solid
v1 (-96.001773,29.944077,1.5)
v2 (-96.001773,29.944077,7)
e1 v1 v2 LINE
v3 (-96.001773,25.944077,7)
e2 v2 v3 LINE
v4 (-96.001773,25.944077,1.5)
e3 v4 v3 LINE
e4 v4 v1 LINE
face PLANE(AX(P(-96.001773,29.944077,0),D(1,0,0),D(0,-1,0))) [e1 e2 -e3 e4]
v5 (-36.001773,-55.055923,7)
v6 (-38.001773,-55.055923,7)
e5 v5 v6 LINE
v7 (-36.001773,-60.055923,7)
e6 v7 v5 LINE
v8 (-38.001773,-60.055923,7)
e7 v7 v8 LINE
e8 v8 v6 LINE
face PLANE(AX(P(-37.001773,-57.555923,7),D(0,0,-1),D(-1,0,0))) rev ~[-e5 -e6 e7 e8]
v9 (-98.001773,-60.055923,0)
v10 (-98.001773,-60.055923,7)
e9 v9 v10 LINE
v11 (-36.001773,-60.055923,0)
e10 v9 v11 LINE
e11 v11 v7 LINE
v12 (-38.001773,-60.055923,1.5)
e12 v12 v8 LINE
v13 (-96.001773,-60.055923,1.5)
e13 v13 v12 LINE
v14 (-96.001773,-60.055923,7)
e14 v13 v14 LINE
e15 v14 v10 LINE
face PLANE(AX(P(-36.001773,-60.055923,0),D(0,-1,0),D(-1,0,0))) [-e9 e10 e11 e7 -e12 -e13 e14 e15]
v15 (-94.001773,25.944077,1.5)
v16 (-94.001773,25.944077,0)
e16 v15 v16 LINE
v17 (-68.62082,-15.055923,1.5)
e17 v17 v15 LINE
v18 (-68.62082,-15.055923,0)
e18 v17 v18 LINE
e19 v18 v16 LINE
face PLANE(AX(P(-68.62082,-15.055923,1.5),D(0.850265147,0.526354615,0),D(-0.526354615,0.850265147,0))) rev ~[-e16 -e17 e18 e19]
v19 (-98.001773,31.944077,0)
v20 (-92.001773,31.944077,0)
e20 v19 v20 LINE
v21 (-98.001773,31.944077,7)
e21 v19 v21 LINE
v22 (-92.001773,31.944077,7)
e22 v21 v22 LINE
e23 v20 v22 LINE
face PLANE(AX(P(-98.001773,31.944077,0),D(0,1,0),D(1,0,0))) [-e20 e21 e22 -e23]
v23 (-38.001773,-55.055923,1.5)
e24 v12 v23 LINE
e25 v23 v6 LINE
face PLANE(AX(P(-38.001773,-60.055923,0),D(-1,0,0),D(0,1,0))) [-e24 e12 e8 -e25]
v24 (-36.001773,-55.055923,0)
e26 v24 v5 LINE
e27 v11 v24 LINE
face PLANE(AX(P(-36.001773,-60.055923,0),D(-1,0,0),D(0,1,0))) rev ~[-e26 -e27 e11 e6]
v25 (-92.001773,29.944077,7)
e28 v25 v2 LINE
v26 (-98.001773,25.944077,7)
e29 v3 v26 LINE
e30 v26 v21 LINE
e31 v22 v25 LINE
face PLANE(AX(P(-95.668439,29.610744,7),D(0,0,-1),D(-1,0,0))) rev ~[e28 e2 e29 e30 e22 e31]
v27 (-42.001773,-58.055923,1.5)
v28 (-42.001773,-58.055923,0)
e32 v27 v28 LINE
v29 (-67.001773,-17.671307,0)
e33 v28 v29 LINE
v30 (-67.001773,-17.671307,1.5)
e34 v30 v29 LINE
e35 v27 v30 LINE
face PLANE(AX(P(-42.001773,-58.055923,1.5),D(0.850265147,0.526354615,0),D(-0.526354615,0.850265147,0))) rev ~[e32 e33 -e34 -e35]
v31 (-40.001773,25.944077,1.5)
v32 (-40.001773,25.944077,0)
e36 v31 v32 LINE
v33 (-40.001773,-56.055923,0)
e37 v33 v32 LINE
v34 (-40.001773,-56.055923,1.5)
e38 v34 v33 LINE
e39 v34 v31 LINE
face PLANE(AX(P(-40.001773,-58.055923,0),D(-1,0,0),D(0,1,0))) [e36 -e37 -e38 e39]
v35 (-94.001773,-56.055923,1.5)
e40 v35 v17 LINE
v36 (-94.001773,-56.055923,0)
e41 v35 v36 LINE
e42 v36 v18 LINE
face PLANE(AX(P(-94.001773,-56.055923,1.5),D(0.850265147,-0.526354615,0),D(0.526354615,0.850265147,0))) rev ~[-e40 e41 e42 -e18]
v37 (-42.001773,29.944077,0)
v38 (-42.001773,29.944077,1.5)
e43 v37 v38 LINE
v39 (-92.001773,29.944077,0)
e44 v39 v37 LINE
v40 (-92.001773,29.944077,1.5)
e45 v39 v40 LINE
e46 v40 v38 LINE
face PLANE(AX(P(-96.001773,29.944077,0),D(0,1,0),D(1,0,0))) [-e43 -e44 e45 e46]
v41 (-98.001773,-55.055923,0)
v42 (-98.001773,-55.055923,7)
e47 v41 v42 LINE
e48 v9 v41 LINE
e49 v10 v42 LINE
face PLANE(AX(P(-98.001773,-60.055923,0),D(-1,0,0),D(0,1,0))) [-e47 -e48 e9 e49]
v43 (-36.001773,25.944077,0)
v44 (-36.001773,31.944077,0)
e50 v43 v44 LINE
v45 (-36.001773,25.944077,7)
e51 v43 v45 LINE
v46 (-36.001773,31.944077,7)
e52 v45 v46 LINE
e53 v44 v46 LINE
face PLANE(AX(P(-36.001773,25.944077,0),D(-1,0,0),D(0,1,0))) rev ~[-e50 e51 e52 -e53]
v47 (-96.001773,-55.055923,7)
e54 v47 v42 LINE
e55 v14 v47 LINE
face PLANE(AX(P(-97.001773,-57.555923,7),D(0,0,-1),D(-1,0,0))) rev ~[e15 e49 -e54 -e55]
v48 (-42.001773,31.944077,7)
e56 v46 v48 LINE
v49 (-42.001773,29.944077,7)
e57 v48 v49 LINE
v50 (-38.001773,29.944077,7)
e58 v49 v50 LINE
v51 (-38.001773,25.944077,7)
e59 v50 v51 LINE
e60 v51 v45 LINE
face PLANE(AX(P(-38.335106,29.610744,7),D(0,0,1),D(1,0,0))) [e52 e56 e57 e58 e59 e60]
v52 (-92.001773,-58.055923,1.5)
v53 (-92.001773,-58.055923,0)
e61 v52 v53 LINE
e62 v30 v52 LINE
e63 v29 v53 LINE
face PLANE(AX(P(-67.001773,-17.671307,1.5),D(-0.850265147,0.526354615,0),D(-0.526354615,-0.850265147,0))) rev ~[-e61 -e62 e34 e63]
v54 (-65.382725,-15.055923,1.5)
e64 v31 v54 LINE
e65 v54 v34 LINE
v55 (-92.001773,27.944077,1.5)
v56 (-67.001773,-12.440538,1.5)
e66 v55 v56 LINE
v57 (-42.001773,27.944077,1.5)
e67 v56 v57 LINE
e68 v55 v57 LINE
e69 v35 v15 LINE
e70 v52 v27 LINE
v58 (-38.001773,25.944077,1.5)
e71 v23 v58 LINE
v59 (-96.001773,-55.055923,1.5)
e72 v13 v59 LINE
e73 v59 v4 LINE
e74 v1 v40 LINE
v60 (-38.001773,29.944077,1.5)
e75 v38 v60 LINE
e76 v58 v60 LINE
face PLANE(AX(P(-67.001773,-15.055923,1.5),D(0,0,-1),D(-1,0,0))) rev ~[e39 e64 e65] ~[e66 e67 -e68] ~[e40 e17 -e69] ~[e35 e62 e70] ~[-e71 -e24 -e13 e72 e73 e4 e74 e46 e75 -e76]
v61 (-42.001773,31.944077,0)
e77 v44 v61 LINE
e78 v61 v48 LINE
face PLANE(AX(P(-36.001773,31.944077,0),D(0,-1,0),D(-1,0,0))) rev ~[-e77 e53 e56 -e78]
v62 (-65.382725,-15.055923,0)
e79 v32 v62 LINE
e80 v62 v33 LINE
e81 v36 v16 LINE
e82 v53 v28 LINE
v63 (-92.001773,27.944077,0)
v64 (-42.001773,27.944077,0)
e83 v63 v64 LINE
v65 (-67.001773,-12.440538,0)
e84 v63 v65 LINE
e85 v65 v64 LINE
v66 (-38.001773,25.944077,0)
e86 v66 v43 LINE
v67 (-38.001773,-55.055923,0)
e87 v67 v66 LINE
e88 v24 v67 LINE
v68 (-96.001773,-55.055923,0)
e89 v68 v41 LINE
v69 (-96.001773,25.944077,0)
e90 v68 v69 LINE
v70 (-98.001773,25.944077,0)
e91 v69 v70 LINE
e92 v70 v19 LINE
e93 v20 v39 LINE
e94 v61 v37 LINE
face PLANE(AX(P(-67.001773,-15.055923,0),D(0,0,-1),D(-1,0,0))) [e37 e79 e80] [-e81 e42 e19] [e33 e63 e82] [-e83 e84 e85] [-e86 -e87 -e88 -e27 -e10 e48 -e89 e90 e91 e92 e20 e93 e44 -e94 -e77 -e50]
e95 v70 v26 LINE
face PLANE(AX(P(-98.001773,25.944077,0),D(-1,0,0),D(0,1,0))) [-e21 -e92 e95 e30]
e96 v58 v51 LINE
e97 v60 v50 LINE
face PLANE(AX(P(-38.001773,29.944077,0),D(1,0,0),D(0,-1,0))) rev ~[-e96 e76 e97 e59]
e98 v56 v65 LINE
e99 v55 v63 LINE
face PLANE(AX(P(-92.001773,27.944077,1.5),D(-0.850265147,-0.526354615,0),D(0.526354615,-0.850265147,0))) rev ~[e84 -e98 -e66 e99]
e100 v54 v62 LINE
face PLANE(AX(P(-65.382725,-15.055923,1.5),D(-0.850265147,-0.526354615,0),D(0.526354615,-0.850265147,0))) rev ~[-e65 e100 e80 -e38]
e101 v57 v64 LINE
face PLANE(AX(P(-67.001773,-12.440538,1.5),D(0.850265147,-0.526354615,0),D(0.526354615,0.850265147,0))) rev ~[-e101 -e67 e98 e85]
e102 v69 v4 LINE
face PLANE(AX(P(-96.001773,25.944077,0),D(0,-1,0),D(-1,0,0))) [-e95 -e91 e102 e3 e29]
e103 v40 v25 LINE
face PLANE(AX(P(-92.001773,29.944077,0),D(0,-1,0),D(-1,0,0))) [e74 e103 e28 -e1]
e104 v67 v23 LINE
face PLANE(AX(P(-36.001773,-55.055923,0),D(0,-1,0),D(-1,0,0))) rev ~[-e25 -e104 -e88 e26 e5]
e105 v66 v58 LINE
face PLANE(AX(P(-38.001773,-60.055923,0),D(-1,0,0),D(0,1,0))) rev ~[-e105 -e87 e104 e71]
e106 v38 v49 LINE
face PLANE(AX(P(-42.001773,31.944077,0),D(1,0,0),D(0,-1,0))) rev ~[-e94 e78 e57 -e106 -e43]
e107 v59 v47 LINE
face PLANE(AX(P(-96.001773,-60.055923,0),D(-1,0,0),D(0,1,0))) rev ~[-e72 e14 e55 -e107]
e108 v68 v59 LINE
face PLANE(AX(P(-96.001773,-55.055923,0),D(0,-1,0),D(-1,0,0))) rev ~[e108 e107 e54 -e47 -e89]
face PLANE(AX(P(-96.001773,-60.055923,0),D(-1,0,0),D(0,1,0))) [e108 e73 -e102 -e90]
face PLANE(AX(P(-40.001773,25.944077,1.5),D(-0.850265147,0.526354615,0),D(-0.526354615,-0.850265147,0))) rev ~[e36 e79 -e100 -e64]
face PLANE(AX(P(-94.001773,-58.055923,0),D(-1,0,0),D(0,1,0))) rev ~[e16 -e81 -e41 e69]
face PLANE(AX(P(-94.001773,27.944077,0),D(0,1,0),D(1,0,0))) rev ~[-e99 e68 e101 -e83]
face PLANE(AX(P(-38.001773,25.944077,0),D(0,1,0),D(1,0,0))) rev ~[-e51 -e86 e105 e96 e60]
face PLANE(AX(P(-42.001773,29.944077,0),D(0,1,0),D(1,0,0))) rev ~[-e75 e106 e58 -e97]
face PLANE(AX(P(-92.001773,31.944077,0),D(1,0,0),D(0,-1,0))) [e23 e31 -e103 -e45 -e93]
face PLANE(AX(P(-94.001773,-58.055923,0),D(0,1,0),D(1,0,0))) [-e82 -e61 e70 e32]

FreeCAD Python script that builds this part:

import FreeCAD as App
import Part
import Sketcher

V = App.Vector
Q = App.Units.Quantity


def add_polygon(sketch, points):
    """Adds a closed chain of lines whose ends are joined by coincident constraints."""
    first, n = sketch.GeometryCount, len(points)
    for a, b in zip(points, points[1:] + points[:1]):
        sketch.addGeometry(Part.LineSegment(App.Vector(*a, 0), App.Vector(*b, 0)), False)
    for i in range(n):
        sketch.addConstraint(Sketcher.Constraint("Coincident", first + i, 2, first + (i + 1) % n, 1))

doc = App.newDocument("Part")
params = doc.addObject("Spreadsheet::Sheet", "Params")
for row, (alias, value) in enumerate([
    ("sketch1_width", "58 mm"),
    ("sketch1_width2", "54 mm"),
    ("sketch1_height", "90 mm"),
    ("sketch1_height2", "86 mm"),
    ("pad1_length", "1.5 mm"),
    ("sketch2_width", "2 mm"),
    ("sketch2_width2", "4 mm"),
    ("sketch2_height", "5 mm"),
    ("pad2_length", "7 mm"),
    ("sketch3_width", "2 mm"),
    ("pad3_length", "1.5 mm"),
], start=1):
    params.set(f"A{row}", alias)
    params.set(f"B{row}", "=" + value)
    params.setAlias(f"B{row}", alias)

body = doc.addObject("PartDesign::Body", "Body")

sketch1 = doc.addObject("Sketcher::SketchObject", "Sketch")
body.addObject(sketch1)
sketch1.AttachmentSupport = (doc.XY_Plane, [""])
sketch1.MapMode = "FlatFace"
add_polygon(sketch1, [(-96, 30), (-96, -60), (-38, -60), (-38, 30)])
add_polygon(sketch1, [(-40, -58), (-94, -58), (-94, 28), (-40, 28)])
sketch1.addConstraint([
    Sketcher.Constraint("Vertical", 0),
    Sketcher.Constraint("Horizontal", 1),
    Sketcher.Constraint("Vertical", 2),
    Sketcher.Constraint("Horizontal", 3),
    Sketcher.Constraint("Horizontal", 4),
    Sketcher.Constraint("Vertical", 5),
    Sketcher.Constraint("Horizontal", 6),
    Sketcher.Constraint("Vertical", 7),
    Sketcher.Constraint("DistanceX", 1, 1, 1, 2, Q("58 mm")),
    Sketcher.Constraint("DistanceX", 4, 2, 4, 1, Q("54 mm")),
    Sketcher.Constraint("DistanceY", 0, 2, 0, 1, Q("90 mm")),
    Sketcher.Constraint("DistanceY", 5, 1, 5, 2, Q("86 mm")),
    Sketcher.Constraint("DistanceX", 0, 2, 4, 2, Q("2 mm")),
    Sketcher.Constraint("DistanceY", 0, 2, 4, 2, Q("2 mm")),
    Sketcher.Constraint("DistanceX", 0, 2, -1, 1, Q("96.001773 mm")),
    Sketcher.Constraint("DistanceY", 0, 2, -1, 1, Q("60.055923 mm")),
])
sketch1.setExpression("Constraints[16]", "Params.sketch1_width")
sketch1.setExpression("Constraints[17]", "Params.sketch1_width2")
sketch1.setExpression("Constraints[18]", "Params.sketch1_height")
sketch1.setExpression("Constraints[19]", "Params.sketch1_height2")
pad1 = doc.addObject("PartDesign::Pad", "Pad")
body.addObject(pad1)
pad1.Profile = sketch1
pad1.setExpression("Length", "Params.pad1_length")

sketch2 = doc.addObject("Sketcher::SketchObject", "Sketch001")
body.addObject(sketch2)
sketch2.AttachmentSupport = (doc.XY_Plane, [""])
sketch2.MapMode = "FlatFace"
add_polygon(sketch2, [(-36, -55.1), (-36, -60.1), (-38, -60.1), (-38, -55.1)])
add_polygon(sketch2, [(-38, 25.9), (-38, 29.9), (-42, 29.9), (-42, 31.9), (-36, 31.9), (-36, 25.9)])
add_polygon(sketch2, [(-92, 29.9), (-96, 29.9), (-96, 25.9), (-98, 25.9), (-98, 31.9), (-92, 31.9)])
add_polygon(sketch2, [(-96, -55.1), (-96, -60.1), (-98, -60.1), (-98, -55.1)])
sketch2.addConstraint([
    Sketcher.Constraint("Vertical", 0),
    Sketcher.Constraint("Horizontal", 1),
    Sketcher.Constraint("Vertical", 2),
    Sketcher.Constraint("Horizontal", 3),
    Sketcher.Constraint("Vertical", 4),
    Sketcher.Constraint("Horizontal", 5),
    Sketcher.Constraint("Vertical", 6),
    Sketcher.Constraint("Horizontal", 7),
    Sketcher.Constraint("Vertical", 8),
    Sketcher.Constraint("Horizontal", 9),
    Sketcher.Constraint("Horizontal", 10),
    Sketcher.Constraint("Vertical", 11),
    Sketcher.Constraint("Horizontal", 12),
    Sketcher.Constraint("Vertical", 13),
    Sketcher.Constraint("Horizontal", 14),
    Sketcher.Constraint("Vertical", 15),
    Sketcher.Constraint("Vertical", 16),
    Sketcher.Constraint("Horizontal", 17),
    Sketcher.Constraint("Vertical", 18),
    Sketcher.Constraint("Horizontal", 19),
    Sketcher.Constraint("Horizontal", 5, 2, 10, 2),
    Sketcher.Constraint("Horizontal", 9, 2, 11, 2),
    Sketcher.Constraint("Horizontal", 7, 2, 13, 2),
    Sketcher.Constraint("Horizontal", 1, 2, 16, 2),
    Sketcher.Constraint("Horizontal", 3, 2, 18, 2),
    Sketcher.Constraint("Vertical", 2, 2, 4, 2),
    Sketcher.Constraint("Vertical", 3, 2, 7, 2),
    Sketcher.Constraint("Vertical", 11, 2, 16, 2),
    Sketcher.Constraint("Vertical", 13, 2, 17, 2),
    Sketcher.Constraint("Equal", 5, 10),
    Sketcher.Constraint("Equal", 9, 12),
    Sketcher.Constraint("Equal", 10, 4),
    Sketcher.Constraint("Equal", 19, 6),
    Sketcher.Constraint("DistanceX", 1, 2, 1, 1, Q("2 mm")),
    Sketcher.Constraint("DistanceX", 5, 2, 5, 1, Q("4 mm")),
    Sketcher.Constraint("DistanceY", 0, 2, 0, 1, Q("5 mm")),
    Sketcher.Constraint("DistanceY", 2, 2, 4, 2, Q("85 mm")),
    Sketcher.Constraint("DistanceX", 10, 2, 5, 2, Q("54 mm")),
    Sketcher.Constraint("DistanceX", 0, 2, -1, 1, Q("36.001773 mm")),
    Sketcher.Constraint("DistanceY", 0, 2, -1, 1, Q("60.055923 mm")),
])
sketch2.setExpression("Constraints[53]", "Params.sketch2_width")
sketch2.setExpression("Constraints[54]", "Params.sketch2_width2")
sketch2.setExpression("Constraints[55]", "Params.sketch2_height")
pad2 = doc.addObject("PartDesign::Pad", "Pad001")
body.addObject(pad2)
pad2.Profile = sketch2
pad2.setExpression("Length", "Params.pad2_length")

sketch3 = doc.addObject("Sketcher::SketchObject", "Sketch002")
body.addObject(sketch3)
sketch3.AttachmentSupport = (doc.XY_Plane, [""])
sketch3.MapMode = "FlatFace"
sketch3.AttachmentOffset = App.Placement(V(0, 0, 1.5), App.Rotation())
add_polygon(sketch3, [(-94, -56.1), (-68.6, -15.1), (-94, 25.9), (-94, 27.9), (-92, 27.9), (-67, -12.4), (-42, 27.9), (-40, 27.9), (-40, 25.9), (-65.4, -15.1), (-40, -56.1), (-40, -58.1), (-42, -58.1), (-67, -17.7), (-92, -58.1), (-94, -58.1)])
sketch3.addConstraint([
    Sketcher.Constraint("Vertical", 2),
    Sketcher.Constraint("Horizontal", 3),
    Sketcher.Constraint("Horizontal", 6),
    Sketcher.Constraint("Vertical", 7),
    Sketcher.Constraint("Vertical", 10),
    Sketcher.Constraint("Horizontal", 11),
    Sketcher.Constraint("Horizontal", 14),
    Sketcher.Constraint("Vertical", 15),
    Sketcher.Constraint("Parallel", 1, 4),
    Sketcher.Constraint("Parallel", 0, 5),
    Sketcher.Constraint("Parallel", 5, 8),
    Sketcher.Constraint("Parallel", 4, 9),
    Sketcher.Constraint("Parallel", 9, 12),
    Sketcher.Constraint("Parallel", 8, 13),
    Sketcher.Constraint("Horizontal", 3, 2, 5, 2),
    Sketcher.Constraint("Horizontal", 1, 2, 7, 2),
    Sketcher.Constraint("Horizontal", 0, 2, 8, 2),
    Sketcher.Constraint("Horizontal", 11, 2, 13, 2),
    Sketcher.Constraint("Horizontal", 9, 2, 15, 2),
    Sketcher.Constraint("Vertical", 7, 2, 9, 2),
    Sketcher.Constraint("Vertical", 5, 2, 11, 2),
    Sketcher.Constraint("Vertical", 4, 2, 12, 2),
    Sketcher.Constraint("Vertical", 3, 2, 13, 2),
    Sketcher.Constraint("Equal", 3, 6),
    Sketcher.Constraint("Equal", 14, 2),
    Sketcher.Constraint("Equal", 7, 10),
    Sketcher.Constraint("DistanceX", 3, 1, 3, 2, Q("2 mm")),
    Sketcher.Constraint("DistanceY", 0, 2, 1, 2, Q("41 mm")),
    Sketcher.Constraint("DistanceX", 1, 2, 4, 2, Q("27 mm")),
    Sketcher.Constraint("DistanceX", 0, 2, -1, 1, Q("68.62082 mm")),
    Sketcher.Constraint("DistanceY", 4, 2, -1, 1, Q("12.440538 mm")),
    Sketcher.Constraint("DistanceY", 12, 2, 4, 2, Q("5.230769 mm")),
])
sketch3.setExpression("Constraints[42]", "Params.sketch3_width")
pad3 = doc.addObject("PartDesign::Pad", "Pad002")
body.addObject(pad3)
pad3.Profile = sketch3
pad3.setExpression("Length", "Params.pad3_length")
pad3.Reversed = True

doc.recompute()
